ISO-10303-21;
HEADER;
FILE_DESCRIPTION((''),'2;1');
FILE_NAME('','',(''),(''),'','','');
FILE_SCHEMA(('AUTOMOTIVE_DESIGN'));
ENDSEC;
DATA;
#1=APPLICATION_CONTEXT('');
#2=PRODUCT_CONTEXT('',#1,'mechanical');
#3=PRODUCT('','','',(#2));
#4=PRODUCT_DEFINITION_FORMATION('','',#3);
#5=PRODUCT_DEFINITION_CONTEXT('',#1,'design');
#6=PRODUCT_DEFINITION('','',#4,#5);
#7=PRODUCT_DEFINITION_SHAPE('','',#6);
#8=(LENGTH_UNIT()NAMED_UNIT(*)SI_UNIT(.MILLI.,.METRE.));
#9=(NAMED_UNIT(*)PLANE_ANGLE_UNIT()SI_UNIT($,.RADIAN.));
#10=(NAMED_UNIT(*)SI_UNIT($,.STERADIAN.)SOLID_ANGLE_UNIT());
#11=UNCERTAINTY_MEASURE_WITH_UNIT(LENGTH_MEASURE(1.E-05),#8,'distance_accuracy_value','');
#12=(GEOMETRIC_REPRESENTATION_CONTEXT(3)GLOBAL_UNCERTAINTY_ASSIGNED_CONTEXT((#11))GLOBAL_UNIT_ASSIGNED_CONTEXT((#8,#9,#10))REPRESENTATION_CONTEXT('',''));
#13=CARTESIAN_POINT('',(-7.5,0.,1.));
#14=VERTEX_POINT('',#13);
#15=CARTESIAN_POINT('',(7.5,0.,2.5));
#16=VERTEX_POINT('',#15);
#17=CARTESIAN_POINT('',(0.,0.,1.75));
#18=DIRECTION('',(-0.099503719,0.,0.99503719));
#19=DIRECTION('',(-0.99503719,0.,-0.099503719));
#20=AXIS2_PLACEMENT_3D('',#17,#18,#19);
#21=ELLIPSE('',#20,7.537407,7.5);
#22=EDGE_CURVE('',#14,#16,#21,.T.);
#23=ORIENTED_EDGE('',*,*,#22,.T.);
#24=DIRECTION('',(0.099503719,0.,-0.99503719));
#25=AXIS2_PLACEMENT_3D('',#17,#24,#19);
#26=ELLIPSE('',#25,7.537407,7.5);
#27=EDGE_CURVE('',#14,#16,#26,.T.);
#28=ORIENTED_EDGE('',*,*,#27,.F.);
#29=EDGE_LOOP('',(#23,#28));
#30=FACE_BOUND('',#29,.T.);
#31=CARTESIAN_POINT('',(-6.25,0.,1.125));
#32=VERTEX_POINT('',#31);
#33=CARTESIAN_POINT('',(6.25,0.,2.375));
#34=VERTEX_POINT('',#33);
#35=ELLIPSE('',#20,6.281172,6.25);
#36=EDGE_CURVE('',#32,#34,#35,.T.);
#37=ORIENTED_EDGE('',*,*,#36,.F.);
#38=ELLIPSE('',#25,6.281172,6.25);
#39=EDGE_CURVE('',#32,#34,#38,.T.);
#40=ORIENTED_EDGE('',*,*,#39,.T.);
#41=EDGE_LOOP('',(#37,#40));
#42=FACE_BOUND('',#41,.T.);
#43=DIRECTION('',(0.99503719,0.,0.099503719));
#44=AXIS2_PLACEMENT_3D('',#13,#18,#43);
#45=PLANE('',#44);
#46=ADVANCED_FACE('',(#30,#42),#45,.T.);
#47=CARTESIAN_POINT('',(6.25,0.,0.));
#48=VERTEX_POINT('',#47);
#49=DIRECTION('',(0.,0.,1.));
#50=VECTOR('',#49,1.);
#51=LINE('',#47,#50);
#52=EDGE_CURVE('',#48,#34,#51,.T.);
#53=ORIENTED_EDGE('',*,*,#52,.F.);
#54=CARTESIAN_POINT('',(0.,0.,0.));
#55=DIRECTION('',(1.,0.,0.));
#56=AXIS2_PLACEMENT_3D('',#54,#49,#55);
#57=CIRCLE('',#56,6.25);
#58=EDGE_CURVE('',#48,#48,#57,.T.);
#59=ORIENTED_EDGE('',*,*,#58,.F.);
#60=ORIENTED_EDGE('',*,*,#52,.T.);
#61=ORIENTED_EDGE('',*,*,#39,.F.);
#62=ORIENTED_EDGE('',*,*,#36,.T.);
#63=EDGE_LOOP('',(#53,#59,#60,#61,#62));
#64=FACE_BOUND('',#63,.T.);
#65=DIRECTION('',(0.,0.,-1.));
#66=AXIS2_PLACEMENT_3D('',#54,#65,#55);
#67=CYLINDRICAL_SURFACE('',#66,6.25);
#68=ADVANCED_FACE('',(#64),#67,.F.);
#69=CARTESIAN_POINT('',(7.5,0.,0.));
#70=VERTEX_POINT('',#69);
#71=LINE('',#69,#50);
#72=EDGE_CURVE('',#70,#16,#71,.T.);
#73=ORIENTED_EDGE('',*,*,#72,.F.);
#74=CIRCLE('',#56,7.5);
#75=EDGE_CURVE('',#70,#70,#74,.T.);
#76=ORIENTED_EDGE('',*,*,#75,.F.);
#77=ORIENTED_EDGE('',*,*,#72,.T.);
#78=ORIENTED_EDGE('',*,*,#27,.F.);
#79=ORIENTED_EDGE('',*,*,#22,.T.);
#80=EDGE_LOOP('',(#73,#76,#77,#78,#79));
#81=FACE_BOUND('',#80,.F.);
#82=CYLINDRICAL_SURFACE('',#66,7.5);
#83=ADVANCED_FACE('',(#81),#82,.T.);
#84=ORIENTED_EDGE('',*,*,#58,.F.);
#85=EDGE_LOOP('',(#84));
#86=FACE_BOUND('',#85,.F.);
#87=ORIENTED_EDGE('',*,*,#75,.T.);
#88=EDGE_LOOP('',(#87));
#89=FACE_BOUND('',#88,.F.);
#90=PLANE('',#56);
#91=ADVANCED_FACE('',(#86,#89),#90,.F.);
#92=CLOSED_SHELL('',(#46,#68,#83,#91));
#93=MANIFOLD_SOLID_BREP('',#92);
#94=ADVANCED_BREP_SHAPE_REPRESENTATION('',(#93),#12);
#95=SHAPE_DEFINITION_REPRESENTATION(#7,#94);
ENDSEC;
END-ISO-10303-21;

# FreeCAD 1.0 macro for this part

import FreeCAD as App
import Part
import Sketcher

V = App.Vector
Q = App.Units.Quantity


def add_polygon(sketch, points):
    """Adds a closed chain of lines whose ends are joined by coincident constraints."""
    first, n = sketch.GeometryCount, len(points)
    for a, b in zip(points, points[1:] + points[:1]):
        sketch.addGeometry(Part.LineSegment(App.Vector(*a, 0), App.Vector(*b, 0)), False)
    for i in range(n):
        sketch.addConstraint(Sketcher.Constraint("Coincident", first + i, 2, first + (i + 1) % n, 1))

doc = App.newDocument("Part")
params = doc.addObject("Spreadsheet::Sheet", "Params")
for row, (alias, value) in enumerate([
    ("sketch1_diameter", "15 mm"),
    ("sketch1_diameter2", "12.5 mm"),
    ("pad1_length", "25 mm"),
    ("sketch2_width", "15 mm"),
    ("sketch2_height", "24 mm"),
    ("sketch2_height2", "22.5 mm"),
], start=1):
    params.set(f"A{row}", alias)
    params.set(f"B{row}", "=" + value)
    params.setAlias(f"B{row}", alias)

body = doc.addObject("PartDesign::Body", "Body")

sketch1 = body.newObject("Sketcher::SketchObject", "Sketch")
sketch1.AttachmentSupport = (doc.getObject("XY_Plane"), [""])
sketch1.MapMode = "FlatFace"
sketch1.addGeometry([
    Part.Circle(V(0, 0, 0), V(0, 0, 1), 8),
    Part.Circle(V(0, 0, 0), V(0, 0, 1), 6),
], False)
sketch1.addConstraint([
    Sketcher.Constraint("Coincident", 0, 3, -1, 1),
    Sketcher.Constraint("Coincident", 1, 3, -1, 1),
    Sketcher.Constraint("Diameter", 0, Q("15 mm")),
    Sketcher.Constraint("Diameter", 1, Q("12.5 mm")),
])
sketch1.setExpression("Constraints[2]", "Params.sketch1_diameter")
sketch1.setExpression("Constraints[3]", "Params.sketch1_diameter2")
pad1 = body.newObject("PartDesign::Pad", "Pad")
pad1.Profile = sketch1
pad1.setExpression("Length", "Params.pad1_length")

sketch2 = body.newObject("Sketcher::SketchObject", "Sketch001")
sketch2.AttachmentSupport = (doc.getObject("XZ_Plane"), [""])
sketch2.MapMode = "FlatFace"
add_polygon(sketch2, [(-8, 25), (-8, 1), (8, 2), (8, 25)])
sketch2.addConstraint([
    Sketcher.Constraint("Vertical", 0),
    Sketcher.Constraint("Vertical", 2),
    Sketcher.Constraint("Horizontal", 3),
    Sketcher.Constraint("DistanceX", 3, 2, 3, 1, Q("15 mm")),
    Sketcher.Constraint("DistanceY", 0, 2, 0, 1, Q("24 mm")),
    Sketcher.Constraint("DistanceY", 2, 1, 2, 2, Q("22.5 mm")),
    Sketcher.Constraint("DistanceY", -1, 1, 0, 2, Q("1 mm")),
    Sketcher.Constraint("DistanceX", 0, 2, -1, 1, Q("7.5 mm")),
])
sketch2.setExpression("Constraints[7]", "Params.sketch2_width")
sketch2.setExpression("Constraints[8]", "Params.sketch2_height")
sketch2.setExpression("Constraints[9]", "Params.sketch2_height2")
pocket1 = body.newObject("PartDesign::Pocket", "Pocket")
pocket1.Profile = sketch2
pocket1.Type = "ThroughAll"
pocket1.Midplane = True

doc.recompute()
